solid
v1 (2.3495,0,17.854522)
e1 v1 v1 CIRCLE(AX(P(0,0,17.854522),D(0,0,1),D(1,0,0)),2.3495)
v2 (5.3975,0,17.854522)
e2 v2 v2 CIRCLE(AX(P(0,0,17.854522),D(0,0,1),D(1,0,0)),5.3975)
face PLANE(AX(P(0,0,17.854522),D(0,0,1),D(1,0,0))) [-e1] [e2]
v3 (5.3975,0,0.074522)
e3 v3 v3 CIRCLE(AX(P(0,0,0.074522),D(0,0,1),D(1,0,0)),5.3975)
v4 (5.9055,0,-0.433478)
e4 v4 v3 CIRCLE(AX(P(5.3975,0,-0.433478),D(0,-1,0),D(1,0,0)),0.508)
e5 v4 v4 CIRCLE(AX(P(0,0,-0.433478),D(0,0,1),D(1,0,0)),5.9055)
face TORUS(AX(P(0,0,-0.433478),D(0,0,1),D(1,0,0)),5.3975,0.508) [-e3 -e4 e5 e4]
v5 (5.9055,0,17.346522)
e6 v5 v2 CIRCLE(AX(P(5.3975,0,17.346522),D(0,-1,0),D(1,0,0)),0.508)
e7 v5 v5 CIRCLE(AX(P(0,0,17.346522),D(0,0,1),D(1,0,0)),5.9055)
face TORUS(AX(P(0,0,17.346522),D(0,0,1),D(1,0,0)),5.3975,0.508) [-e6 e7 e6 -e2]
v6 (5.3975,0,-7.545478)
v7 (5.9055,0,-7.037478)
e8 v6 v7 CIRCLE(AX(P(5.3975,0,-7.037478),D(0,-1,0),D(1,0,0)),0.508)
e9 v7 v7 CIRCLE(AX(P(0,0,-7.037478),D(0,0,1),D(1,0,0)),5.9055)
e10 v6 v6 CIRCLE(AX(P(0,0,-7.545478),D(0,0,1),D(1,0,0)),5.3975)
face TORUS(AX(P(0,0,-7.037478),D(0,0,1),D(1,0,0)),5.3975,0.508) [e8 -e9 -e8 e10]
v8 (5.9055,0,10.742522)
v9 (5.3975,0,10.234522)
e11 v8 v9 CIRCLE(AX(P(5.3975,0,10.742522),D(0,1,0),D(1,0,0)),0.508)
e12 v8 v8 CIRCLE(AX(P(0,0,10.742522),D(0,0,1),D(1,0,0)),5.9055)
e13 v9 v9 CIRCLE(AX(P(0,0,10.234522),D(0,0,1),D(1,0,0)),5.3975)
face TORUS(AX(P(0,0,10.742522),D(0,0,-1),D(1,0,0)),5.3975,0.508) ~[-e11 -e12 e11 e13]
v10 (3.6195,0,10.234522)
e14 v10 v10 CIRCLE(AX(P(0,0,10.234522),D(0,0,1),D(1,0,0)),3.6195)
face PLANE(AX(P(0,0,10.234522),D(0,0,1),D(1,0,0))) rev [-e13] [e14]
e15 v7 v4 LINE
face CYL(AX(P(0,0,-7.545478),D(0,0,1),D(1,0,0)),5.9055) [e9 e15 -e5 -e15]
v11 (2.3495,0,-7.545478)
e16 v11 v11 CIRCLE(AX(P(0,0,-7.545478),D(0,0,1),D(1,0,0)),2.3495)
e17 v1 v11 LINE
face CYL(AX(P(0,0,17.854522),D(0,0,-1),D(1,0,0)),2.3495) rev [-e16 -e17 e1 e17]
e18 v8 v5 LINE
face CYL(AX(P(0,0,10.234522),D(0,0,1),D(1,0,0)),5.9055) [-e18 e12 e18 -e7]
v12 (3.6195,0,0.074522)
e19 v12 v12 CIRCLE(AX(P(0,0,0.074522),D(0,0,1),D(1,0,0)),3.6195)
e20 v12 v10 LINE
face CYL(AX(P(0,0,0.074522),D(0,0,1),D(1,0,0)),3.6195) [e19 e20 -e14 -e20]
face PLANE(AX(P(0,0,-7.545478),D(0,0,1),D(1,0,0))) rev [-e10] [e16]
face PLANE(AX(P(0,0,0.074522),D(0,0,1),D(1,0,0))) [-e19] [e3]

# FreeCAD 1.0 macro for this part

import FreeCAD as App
import Part
import Sketcher
from FreeCAD import Vector
Q = App.Units.Quantity


def edges_at(feature, points):
    """Names of the edges that pass closest to the given points."""
    edges = feature.Shape.Edges
    near = lambda p: min(range(len(edges)), key=lambda i: edges[i].distToShape(Part.Vertex(*p))[0])
    return sorted({f"Edge{near(p) + 1}" for p in points})


def add_polygon(sketch, points):
    """Adds a closed chain of lines whose ends are joined by coincident constraints."""
    first, n = sketch.GeometryCount, len(points)
    for a, b in zip(points, points[1:] + points[:1]):
        sketch.addGeometry(Part.LineSegment(App.Vector(*a, 0), App.Vector(*b, 0)), False)
    for i in range(n):
        sketch.addConstraint(Sketcher.Constraint("Coincident", first + i, 2, first + (i + 1) % n, 1))

doc = App.newDocument("Part")
params = doc.addObject("Spreadsheet::Sheet", "Params")
for row, (alias, value) in enumerate([
    ("sketch1_height", "1 in"),
    ("sketch1_height2", "0.3 in"),
    ("sketch1_width", "0.14 in"),
    ("sketch1_width2", "0.09 in"),
    ("revolution_angle", "360 deg"),
    ("fillet_radius", "0.02 in"),
    ("fillet2_radius", "0.02 in"),
], start=1):
    params.set(f"A{row}", alias)
    params.set(f"B{row}", "=" + value)
    params.setAlias(f"B{row}", alias)

body = doc.addObject("PartDesign::Body", "Body")

sketch1 = body.newObject("Sketcher::SketchObject", "Sketch")
sketch1.AttachmentSupport = (doc.getObject("XZ_Plane"), [""])
sketch1.MapMode = "FlatFace"
add_polygon(sketch1, [(5.9055, 10.234522), (5.9055, 17.854522), (2.3495, 17.854522), (2.3495, -7.545478), (5.9055, -7.545478), (5.9055, 0.074522), (3.6195, 0.074522), (3.6195, 10.234522)])
sketch1.addConstraint([
    Sketcher.Constraint("Vertical", 0),
    Sketcher.Constraint("Horizontal", 1),
    Sketcher.Constraint("Vertical", 2),
    Sketcher.Constraint("Horizontal", 3),
    Sketcher.Constraint("Vertical", 4),
    Sketcher.Constraint("Horizontal", 5),
    Sketcher.Constraint("Vertical", 6),
    Sketcher.Constraint("Horizontal", 7),
    Sketcher.Constraint("Vertical", 0, 2, 3, 2),
    Sketcher.Constraint("Equal", 0, 4),
    Sketcher.Constraint("DistanceY", 2, 2, 2, 1, Q("1 in")),
    Sketcher.Constraint("DistanceY", 0, 1, 0, 2, Q("0.3 in")),
    Sketcher.Constraint("DistanceX", 1, 2, 1, 1, Q("0.14 in")),
    Sketcher.Constraint("DistanceX", 5, 2, 5, 1, Q("0.09 in")),
    Sketcher.Constraint("DistanceX", -1, 1, 0, 2, Q("0.2325 in")),
    Sketcher.Constraint("DistanceY", -1, 1, 0, 2, 17.854522),
])
sketch1.setExpression("Constraints[18]", "Params.sketch1_height")
sketch1.setExpression("Constraints[19]", "Params.sketch1_height2")
sketch1.setExpression("Constraints[20]", "Params.sketch1_width")
sketch1.setExpression("Constraints[21]", "Params.sketch1_width2")
revolution = body.newObject("PartDesign::Revolution", "Revolution")
revolution.Profile = sketch1
revolution.ReferenceAxis = (sketch1, ["V_Axis"])
revolution.setExpression("Angle", "Params.revolution_angle")
doc.recompute()

fillet = body.newObject("PartDesign::Fillet", "Fillet")
fillet.Base = (revolution, edges_at(revolution, [(-5.905, 0, 17.855), (-5.905, 0, 10.235), (-5.905, 0, 0.075)]))
fillet.setExpression("Radius", "Params.fillet_radius")
doc.recompute()

fillet2 = body.newObject("PartDesign::Fillet", "Fillet001")
fillet2.Base = (fillet, edges_at(fillet, [(-5.905, 0, -7.545)]))
fillet2.setExpression("Radius", "Params.fillet2_radius")

doc.recompute()
